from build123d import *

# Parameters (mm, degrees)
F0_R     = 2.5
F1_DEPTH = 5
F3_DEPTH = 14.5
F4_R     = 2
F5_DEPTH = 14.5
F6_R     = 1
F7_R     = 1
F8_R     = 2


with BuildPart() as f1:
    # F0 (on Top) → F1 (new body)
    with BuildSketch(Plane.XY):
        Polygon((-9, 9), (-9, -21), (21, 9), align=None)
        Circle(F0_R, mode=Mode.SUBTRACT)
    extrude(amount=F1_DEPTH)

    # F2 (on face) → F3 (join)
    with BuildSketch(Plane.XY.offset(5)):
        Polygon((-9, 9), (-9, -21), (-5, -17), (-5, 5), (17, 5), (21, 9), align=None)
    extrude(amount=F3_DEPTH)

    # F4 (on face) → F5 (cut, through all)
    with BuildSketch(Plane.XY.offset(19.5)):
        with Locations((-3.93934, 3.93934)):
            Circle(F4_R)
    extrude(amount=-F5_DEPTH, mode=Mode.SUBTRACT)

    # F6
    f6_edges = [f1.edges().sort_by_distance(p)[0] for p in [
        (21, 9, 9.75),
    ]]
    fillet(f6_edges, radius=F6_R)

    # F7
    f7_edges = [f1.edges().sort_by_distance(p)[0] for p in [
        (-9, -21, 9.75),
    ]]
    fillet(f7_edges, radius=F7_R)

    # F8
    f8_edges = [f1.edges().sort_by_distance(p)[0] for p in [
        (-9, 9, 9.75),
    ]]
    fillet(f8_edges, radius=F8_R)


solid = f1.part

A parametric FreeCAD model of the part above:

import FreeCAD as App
import Part
import Sketcher
from FreeCAD import Vector


def edges_at(feature, points):
    """Names of the edges that pass closest to the given points."""
    edges = feature.Shape.Edges
    near = lambda p: min(range(len(edges)), key=lambda i: edges[i].distToShape(Part.Vertex(*p))[0])
    return sorted({f"Edge{near(p) + 1}" for p in points})

doc = App.newDocument("Part")
body = doc.addObject("PartDesign::Body", "Body")

# Sketch on XY plane
sketch1 = body.newObject("Sketcher::SketchObject", "Sketch")
sketch1.AttachmentSupport = (doc.getObject("XY_Plane"), [""])
sketch1.MapMode = "FlatFace"
sketch1.addGeometry([
    Part.LineSegment(Vector(-9, 9, 0), Vector(-9, -21, 0)),
    Part.LineSegment(Vector(-9, -21, 0), Vector(21, 9, 0)),
    Part.LineSegment(Vector(21, 9, 0), Vector(-9, 9, 0)),
    Part.Circle(Vector(0, 0, 0), Vector(0, 0, 1), 2.5),
], False)
sketch1.addConstraint([
    Sketcher.Constraint("Coincident", 0, 2, 1, 1),
    Sketcher.Constraint("Coincident", 1, 2, 2, 1),
    Sketcher.Constraint("Coincident", 2, 2, 0, 1),
    Sketcher.Constraint("Vertical", 0),
    Sketcher.Constraint("Horizontal", 2),
    Sketcher.Constraint("Coincident", 3, 3, -1, 1),
    Sketcher.Constraint("Equal", 2, 0),
    Sketcher.Constraint("Diameter", 3, 5.0),
    Sketcher.Constraint("DistanceX", 2, 2, 2, 1, 30.0),
    Sketcher.Constraint("DistanceX", 0, 2, -1, 1, 9.0),
    Sketcher.Constraint("DistanceY", 0, 2, -1, 1, 21.0),
])
pad1 = body.newObject("PartDesign::Pad", "Pad")
pad1.Profile = sketch1
pad1.Length = 5

# Sketch on XY plane
sketch2 = body.newObject("Sketcher::SketchObject", "Sketch001")
sketch2.AttachmentSupport = (doc.getObject("XY_Plane"), [""])
sketch2.MapMode = "FlatFace"
sketch2.AttachmentOffset = App.Placement(Vector(0, 0, 5), App.Rotation())
sketch2.addGeometry([
    Part.LineSegment(Vector(-9, 9, 0), Vector(-9, -21, 0)),  # 0
    Part.LineSegment(Vector(-9, -21, 0), Vector(-5, -17, 0)),  # 1
    Part.LineSegment(Vector(-5, -17, 0), Vector(-5, 5, 0)),  # 2
    Part.LineSegment(Vector(-5, 5, 0), Vector(17, 5, 0)),  # 3
    Part.LineSegment(Vector(17, 5, 0), Vector(21, 9, 0)),  # 4
    Part.LineSegment(Vector(21, 9, 0), Vector(-9, 9, 0)),  # 5
], False)
sketch2.addConstraint([
    Sketcher.Constraint("Coincident", 0, 2, 1, 1),
    Sketcher.Constraint("Coincident", 1, 2, 2, 1),
    Sketcher.Constraint("Coincident", 2, 2, 3, 1),
    Sketcher.Constraint("Coincident", 3, 2, 4, 1),
    Sketcher.Constraint("Coincident", 4, 2, 5, 1),
    Sketcher.Constraint("Coincident", 5, 2, 0, 1),
    Sketcher.Constraint("Vertical", 0),
    Sketcher.Constraint("Vertical", 2),
    Sketcher.Constraint("Horizontal", 3),
    Sketcher.Constraint("Horizontal", 5),
    Sketcher.Constraint("Parallel", 1, 4),
    Sketcher.Constraint("Equal", 5, 0),
    Sketcher.Constraint("Equal", 3, 2),
    Sketcher.Constraint("Equal", 1, 4),
    Sketcher.Constraint("DistanceX", 3, 1, 3, 2, 22.0),
    Sketcher.Constraint("DistanceX", 5, 2, 5, 1, 30.0),
    Sketcher.Constraint("DistanceX", 0, 2, -1, 1, 9.0),
    Sketcher.Constraint("DistanceY", 0, 2, -1, 1, 21.0),
])
pad2 = body.newObject("PartDesign::Pad", "Pad001")
pad2.Profile = sketch2
pad2.Length = 14.5

# Sketch on XY plane
sketch3 = body.newObject("Sketcher::SketchObject", "Sketch002")
sketch3.AttachmentSupport = (doc.getObject("XY_Plane"), [""])
sketch3.MapMode = "FlatFace"
sketch3.AttachmentOffset = App.Placement(Vector(0, 0, 19.5), App.Rotation())
sketch3.addGeometry(Part.Circle(Vector(-3.9, 3.9, 0), Vector(0, 0, 1), 2), False)
sketch3.addConstraint([
    Sketcher.Constraint("Diameter", 0, 4.0),
    Sketcher.Constraint("DistanceX", 0, 3, -1, 1, 3.93934),
    Sketcher.Constraint("DistanceY", -1, 1, 0, 3, 3.93934),
])
pocket1 = body.newObject("PartDesign::Pocket", "Pocket")
pocket1.Profile = sketch3
pocket1.Length = 14.5
doc.recompute()

fillet = body.newObject("PartDesign::Fillet", "Fillet")
fillet.Base = (pocket1, edges_at(pocket1, [(21, 9, 9.75)]))
fillet.Radius = 1
doc.recompute()

fillet2 = body.newObject("PartDesign::Fillet", "Fillet001")
fillet2.Base = (fillet, edges_at(fillet, [(-9, -21, 9.75)]))
fillet2.Radius = 1
doc.recompute()

fillet3 = body.newObject("PartDesign::Fillet", "Fillet002")
fillet3.Base = (fillet2, edges_at(fillet2, [(-9, 9, 9.75)]))
fillet3.Radius = 2

doc.recompute()
